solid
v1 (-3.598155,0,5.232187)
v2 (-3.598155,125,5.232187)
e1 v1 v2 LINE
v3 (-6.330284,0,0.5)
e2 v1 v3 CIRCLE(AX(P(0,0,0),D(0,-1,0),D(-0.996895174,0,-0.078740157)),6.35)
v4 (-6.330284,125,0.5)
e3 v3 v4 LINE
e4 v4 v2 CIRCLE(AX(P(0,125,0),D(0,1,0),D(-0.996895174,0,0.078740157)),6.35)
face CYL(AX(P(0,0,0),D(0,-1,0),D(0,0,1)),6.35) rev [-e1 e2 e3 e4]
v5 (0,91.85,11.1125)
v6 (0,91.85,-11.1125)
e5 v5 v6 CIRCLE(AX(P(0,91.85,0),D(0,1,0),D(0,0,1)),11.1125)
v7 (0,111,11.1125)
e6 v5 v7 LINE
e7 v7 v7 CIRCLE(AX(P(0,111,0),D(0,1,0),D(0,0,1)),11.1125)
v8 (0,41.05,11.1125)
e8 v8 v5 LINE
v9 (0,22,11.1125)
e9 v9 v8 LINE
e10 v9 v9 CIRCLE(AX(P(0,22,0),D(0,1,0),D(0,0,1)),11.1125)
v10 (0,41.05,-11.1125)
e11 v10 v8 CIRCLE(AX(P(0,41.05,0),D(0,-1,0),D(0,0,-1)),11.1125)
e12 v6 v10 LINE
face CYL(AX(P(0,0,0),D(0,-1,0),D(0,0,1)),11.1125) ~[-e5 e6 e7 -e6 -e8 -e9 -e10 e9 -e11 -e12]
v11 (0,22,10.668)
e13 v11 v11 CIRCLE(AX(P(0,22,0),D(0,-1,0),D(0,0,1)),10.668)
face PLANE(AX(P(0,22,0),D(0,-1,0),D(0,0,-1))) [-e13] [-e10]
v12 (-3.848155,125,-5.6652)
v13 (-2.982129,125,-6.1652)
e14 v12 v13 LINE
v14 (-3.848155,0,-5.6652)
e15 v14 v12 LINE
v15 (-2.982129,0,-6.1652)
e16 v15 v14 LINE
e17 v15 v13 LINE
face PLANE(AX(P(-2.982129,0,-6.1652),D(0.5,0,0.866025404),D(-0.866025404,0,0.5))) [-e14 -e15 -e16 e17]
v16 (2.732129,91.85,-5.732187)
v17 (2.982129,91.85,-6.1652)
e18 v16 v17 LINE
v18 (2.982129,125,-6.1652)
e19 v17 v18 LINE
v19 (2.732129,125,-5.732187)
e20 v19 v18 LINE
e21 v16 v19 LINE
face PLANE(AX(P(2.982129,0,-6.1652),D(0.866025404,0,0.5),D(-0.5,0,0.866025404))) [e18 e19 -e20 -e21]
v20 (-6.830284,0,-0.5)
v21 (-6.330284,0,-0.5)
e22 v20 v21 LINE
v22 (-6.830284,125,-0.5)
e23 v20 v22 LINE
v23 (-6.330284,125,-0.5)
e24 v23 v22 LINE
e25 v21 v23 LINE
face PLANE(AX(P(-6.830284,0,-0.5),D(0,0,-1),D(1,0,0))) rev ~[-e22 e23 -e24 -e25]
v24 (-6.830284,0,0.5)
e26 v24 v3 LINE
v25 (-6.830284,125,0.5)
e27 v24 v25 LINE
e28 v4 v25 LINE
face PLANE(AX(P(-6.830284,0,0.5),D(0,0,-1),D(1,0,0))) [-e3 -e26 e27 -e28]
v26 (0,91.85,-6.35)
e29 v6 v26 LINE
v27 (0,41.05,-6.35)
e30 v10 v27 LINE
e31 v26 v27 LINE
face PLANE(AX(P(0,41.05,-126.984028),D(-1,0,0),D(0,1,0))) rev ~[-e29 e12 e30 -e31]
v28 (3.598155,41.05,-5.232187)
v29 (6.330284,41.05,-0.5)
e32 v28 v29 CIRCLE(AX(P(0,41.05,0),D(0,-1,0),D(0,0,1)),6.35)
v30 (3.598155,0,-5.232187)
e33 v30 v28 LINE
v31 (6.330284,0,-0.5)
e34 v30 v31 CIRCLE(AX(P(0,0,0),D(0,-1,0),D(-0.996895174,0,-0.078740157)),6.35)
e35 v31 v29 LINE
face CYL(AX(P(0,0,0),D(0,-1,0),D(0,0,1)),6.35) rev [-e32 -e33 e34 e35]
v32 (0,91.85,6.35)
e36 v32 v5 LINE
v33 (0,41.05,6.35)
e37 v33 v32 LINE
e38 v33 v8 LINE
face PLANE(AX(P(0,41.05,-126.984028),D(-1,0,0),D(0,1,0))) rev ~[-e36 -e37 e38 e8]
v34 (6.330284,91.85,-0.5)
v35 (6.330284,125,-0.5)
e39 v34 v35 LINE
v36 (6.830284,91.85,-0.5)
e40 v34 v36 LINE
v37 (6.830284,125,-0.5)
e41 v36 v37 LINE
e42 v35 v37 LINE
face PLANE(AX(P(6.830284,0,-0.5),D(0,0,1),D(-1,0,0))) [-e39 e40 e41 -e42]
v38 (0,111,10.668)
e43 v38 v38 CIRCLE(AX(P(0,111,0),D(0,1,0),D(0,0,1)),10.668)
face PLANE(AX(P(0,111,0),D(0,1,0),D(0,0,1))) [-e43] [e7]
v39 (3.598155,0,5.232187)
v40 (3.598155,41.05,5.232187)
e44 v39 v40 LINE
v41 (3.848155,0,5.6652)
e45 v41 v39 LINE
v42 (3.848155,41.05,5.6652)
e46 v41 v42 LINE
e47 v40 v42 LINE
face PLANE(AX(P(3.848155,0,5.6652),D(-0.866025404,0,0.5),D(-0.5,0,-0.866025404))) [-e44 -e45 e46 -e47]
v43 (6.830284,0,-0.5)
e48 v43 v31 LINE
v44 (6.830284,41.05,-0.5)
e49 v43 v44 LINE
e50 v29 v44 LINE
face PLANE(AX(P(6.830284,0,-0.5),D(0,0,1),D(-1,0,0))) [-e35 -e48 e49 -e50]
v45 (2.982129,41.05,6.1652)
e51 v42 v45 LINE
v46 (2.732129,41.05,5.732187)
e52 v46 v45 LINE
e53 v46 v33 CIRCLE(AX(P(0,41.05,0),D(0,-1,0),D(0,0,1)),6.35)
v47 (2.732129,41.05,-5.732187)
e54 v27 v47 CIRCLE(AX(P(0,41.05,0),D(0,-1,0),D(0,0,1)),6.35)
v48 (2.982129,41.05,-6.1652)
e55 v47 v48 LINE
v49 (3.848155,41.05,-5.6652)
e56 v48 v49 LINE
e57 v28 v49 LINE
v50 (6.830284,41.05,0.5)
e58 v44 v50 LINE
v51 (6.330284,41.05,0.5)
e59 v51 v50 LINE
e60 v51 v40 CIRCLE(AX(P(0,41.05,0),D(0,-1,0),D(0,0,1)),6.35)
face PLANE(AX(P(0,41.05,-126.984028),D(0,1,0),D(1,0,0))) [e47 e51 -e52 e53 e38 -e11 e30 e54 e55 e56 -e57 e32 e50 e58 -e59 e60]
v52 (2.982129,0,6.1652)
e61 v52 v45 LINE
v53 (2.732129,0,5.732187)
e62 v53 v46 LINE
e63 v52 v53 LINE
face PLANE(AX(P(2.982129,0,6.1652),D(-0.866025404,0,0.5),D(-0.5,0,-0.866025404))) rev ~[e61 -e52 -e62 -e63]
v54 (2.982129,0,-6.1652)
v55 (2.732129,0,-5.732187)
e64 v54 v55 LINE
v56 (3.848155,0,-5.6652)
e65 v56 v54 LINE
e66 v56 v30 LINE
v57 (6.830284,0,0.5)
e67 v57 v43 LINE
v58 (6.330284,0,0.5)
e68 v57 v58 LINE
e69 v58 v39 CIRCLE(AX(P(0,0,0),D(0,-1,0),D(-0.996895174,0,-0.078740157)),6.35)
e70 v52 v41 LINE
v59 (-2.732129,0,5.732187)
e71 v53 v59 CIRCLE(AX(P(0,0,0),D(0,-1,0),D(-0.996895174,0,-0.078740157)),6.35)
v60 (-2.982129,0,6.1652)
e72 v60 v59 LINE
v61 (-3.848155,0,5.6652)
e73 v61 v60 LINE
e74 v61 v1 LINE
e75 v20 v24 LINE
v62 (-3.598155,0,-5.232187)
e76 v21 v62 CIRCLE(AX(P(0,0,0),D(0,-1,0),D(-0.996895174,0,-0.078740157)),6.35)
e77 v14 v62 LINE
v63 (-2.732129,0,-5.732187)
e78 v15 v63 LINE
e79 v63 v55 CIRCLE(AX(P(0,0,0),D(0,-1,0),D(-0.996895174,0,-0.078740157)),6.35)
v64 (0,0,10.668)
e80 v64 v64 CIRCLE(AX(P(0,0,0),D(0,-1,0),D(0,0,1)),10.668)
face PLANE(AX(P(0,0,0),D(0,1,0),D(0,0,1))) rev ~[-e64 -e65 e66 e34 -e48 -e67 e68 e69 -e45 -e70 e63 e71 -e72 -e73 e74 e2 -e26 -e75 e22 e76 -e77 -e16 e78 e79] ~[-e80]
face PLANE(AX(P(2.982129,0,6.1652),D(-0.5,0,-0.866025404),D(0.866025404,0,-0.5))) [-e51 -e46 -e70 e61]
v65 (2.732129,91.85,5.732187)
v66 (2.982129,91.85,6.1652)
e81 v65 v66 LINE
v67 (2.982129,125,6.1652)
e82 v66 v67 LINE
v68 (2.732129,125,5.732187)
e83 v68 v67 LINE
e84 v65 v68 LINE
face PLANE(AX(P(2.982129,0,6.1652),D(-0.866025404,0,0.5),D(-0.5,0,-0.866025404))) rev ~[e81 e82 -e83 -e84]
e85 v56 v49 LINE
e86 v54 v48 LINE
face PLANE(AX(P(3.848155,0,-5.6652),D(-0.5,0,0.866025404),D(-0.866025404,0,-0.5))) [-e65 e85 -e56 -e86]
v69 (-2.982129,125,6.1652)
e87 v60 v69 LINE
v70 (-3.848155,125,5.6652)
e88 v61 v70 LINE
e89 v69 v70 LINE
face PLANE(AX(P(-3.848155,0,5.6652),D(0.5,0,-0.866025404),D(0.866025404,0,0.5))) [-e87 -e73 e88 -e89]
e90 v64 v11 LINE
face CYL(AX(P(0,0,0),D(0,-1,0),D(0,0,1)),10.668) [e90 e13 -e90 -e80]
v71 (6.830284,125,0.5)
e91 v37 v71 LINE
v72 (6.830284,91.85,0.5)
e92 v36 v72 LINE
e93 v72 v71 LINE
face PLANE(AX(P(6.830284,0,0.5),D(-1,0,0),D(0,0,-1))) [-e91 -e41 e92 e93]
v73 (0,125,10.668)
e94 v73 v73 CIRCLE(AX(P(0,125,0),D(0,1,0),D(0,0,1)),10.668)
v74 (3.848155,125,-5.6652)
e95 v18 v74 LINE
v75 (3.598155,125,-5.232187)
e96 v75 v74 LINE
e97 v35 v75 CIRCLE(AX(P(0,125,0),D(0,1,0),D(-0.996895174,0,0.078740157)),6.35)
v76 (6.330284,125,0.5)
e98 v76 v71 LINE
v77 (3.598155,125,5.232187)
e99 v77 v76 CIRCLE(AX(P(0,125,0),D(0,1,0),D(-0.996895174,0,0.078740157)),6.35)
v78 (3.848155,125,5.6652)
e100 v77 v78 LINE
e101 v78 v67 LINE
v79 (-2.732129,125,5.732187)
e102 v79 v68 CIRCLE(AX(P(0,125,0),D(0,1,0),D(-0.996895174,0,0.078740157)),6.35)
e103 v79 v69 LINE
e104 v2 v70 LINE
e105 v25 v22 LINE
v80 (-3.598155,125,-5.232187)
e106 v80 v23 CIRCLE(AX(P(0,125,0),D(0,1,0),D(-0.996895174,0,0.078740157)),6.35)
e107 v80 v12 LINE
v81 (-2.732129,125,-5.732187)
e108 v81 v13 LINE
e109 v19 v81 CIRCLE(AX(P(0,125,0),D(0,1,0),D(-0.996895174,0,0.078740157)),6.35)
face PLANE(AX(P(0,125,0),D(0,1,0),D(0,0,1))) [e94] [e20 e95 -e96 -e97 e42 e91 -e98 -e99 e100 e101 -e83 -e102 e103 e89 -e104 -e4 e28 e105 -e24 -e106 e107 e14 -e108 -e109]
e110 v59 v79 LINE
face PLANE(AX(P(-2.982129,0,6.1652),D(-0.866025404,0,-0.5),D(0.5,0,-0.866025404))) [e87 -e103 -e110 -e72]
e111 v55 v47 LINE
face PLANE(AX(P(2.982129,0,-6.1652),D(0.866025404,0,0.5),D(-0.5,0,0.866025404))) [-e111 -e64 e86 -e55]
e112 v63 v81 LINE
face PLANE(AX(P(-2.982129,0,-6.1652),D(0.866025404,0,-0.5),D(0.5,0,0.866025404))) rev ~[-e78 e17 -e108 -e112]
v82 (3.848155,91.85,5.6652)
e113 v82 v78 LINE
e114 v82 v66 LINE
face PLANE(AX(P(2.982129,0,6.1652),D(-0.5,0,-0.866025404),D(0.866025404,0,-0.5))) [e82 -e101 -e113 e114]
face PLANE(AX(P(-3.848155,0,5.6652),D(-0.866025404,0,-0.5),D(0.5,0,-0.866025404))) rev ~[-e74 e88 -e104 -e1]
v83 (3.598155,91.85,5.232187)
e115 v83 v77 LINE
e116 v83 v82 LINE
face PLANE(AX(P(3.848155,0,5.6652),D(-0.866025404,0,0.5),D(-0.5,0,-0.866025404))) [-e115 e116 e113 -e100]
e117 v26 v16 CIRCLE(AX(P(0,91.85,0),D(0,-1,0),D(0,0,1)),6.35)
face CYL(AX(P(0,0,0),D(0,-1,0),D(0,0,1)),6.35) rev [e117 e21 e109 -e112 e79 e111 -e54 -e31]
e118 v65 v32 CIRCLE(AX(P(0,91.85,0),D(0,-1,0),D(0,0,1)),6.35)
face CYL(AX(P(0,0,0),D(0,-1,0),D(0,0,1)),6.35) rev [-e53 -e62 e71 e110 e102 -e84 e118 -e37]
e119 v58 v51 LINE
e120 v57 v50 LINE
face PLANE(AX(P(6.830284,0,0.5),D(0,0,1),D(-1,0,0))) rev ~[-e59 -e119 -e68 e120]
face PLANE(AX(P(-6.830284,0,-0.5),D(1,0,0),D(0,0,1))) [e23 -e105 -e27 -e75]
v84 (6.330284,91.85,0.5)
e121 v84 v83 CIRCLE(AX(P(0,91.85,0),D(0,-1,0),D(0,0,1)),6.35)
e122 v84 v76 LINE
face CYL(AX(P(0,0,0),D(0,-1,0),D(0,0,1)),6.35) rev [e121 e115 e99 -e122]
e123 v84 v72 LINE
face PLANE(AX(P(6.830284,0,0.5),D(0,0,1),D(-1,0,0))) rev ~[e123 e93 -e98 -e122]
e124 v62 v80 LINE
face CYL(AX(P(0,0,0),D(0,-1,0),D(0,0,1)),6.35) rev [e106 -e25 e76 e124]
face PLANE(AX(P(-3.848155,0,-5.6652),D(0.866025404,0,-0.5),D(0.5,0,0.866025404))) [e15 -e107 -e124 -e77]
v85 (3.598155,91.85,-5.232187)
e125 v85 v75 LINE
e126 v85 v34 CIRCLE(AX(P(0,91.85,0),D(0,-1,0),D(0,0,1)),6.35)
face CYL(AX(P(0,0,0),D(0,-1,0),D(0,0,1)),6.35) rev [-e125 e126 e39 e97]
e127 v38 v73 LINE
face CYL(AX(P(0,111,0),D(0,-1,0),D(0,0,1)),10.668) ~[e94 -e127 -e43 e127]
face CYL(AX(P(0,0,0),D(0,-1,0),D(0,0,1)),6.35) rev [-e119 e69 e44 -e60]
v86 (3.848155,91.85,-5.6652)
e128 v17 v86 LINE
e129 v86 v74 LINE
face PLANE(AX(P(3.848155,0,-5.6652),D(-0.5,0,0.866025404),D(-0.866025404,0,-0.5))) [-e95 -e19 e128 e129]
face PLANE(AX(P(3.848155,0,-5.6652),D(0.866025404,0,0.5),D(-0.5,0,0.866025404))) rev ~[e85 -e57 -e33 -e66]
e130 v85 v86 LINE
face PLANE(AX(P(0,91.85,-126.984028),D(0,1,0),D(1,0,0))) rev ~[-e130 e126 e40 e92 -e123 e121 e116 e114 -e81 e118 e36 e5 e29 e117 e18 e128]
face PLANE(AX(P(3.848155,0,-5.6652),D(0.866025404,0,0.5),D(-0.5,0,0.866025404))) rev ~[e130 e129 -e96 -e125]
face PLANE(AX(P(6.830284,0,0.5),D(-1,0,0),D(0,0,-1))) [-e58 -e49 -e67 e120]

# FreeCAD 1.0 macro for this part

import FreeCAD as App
import Part
import Sketcher

doc = App.newDocument("Part")
params = doc.addObject("Spreadsheet::Sheet", "Params")
for row, (alias, value) in enumerate([
    ("sketch1_diameter", "12.7 mm"),
    ("pad1_length", "125 mm"),
    ("pocket1_length", "14 mm"),
    ("pocket2_length", "22 mm"),
    ("sketch4_height", "50.8 mm"),
    ("sketch5_height", "1 mm"),
    ("sketch5_width", "0.5 mm"),
], start=1):
    params.set(f"A{row}", alias)
    params.set(f"B{row}", "=" + value)
    params.setAlias(f"B{row}", alias)

body = doc.addObject("PartDesign::Body", "Body")

# Sketch on XZ plane
sketch1 = doc.addObject("Sketcher::SketchObject", "Sketch")
body.addObject(sketch1)
sketch1.AttachmentSupport = (doc.XZ_Plane, [""])
sketch1.MapMode = "FlatFace"
sketch1.addGeometry([
    Part.Circle(App.Vector(0, 0, 0), App.Vector(0, 0, 1), 11.1125),
    Part.Circle(App.Vector(0, 0, 0), App.Vector(0, 0, 1), 6.35),
], False)
sketch1.addConstraint([
    Sketcher.Constraint("Coincident", 0, 3, -1, 1),
    Sketcher.Constraint("Coincident", 1, 3, -1, 1),
    Sketcher.Constraint("Diameter", 1, 12.7),
    Sketcher.Constraint("Diameter", 0, 22.225),
])
sketch1.setExpression("Constraints[2]", "Params.sketch1_diameter")
pad1 = doc.addObject("PartDesign::Pad", "Pad")
body.addObject(pad1)
pad1.Profile = sketch1
pad1.setExpression("Length", "Params.pad1_length")
pad1.Reversed = True

# Sketch on XZ plane
sketch2 = doc.addObject("Sketcher::SketchObject", "Sketch001")
body.addObject(sketch2)
sketch2.AttachmentSupport = (doc.XZ_Plane, [""])
sketch2.MapMode = "FlatFace"
sketch2.AttachmentOffset = App.Placement(App.Vector(0, 0, -111), App.Rotation())
sketch2.addGeometry([
    Part.Circle(App.Vector(0, 0, 0), App.Vector(0, 0, 1), 11.1125),
    Part.Circle(App.Vector(0, 0, 0), App.Vector(0, 0, 1), 10.668),
], False)
sketch2.addConstraint([
    Sketcher.Constraint("Coincident", 0, 3, -1, 1),
    Sketcher.Constraint("Coincident", 1, 3, -1, 1),
    Sketcher.Constraint("Diameter", 0, 22.225),
    Sketcher.Constraint("Diameter", 1, 21.336),
])
pocket1 = doc.addObject("PartDesign::Pocket", "Pocket")
body.addObject(pocket1)
pocket1.Profile = sketch2
pocket1.setExpression("Length", "Params.pocket1_length")

# Sketch on XZ plane
sketch3 = doc.addObject("Sketcher::SketchObject", "Sketch002")
body.addObject(sketch3)
sketch3.AttachmentSupport = (doc.XZ_Plane, [""])
sketch3.MapMode = "FlatFace"
sketch3.addGeometry([
    Part.Circle(App.Vector(0, 0, 0), App.Vector(0, 0, 1), 11.1125),
    Part.Circle(App.Vector(0, 0, 0), App.Vector(0, 0, 1), 10.668),
], False)
sketch3.addConstraint([
    Sketcher.Constraint("Coincident", 0, 3, -1, 1),
    Sketcher.Constraint("Coincident", 1, 3, -1, 1),
    Sketcher.Constraint("Diameter", 0, 22.225),
    Sketcher.Constraint("Diameter", 1, 21.336),
])
pocket2 = doc.addObject("PartDesign::Pocket", "Pocket001")
body.addObject(pocket2)
pocket2.Profile = sketch3
pocket2.setExpression("Length", "Params.pocket2_length")

# Sketch on XY plane
sketch4 = doc.addObject("Sketcher::SketchObject", "Sketch003")
body.addObject(sketch4)
sketch4.AttachmentSupport = (doc.XY_Plane, [""])
sketch4.MapMode = "FlatFace"
sketch4.addGeometry([
    Part.LineSegment(App.Vector(0, 91.85, 0), App.Vector(0, 41.05, 0)),
    Part.LineSegment(App.Vector(0, 41.05, 0), App.Vector(11.1125, 41.05, 0)),
    Part.LineSegment(App.Vector(11.1125, 41.05, 0), App.Vector(11.1125, 91.85, 0)),
    Part.LineSegment(App.Vector(11.1125, 91.85, 0), App.Vector(0, 91.85, 0)),
], False)
sketch4.addConstraint([
    Sketcher.Constraint("Coincident", 0, 2, 1, 1),
    Sketcher.Constraint("Coincident", 1, 2, 2, 1),
    Sketcher.Constraint("Coincident", 2, 2, 3, 1),
    Sketcher.Constraint("Coincident", 3, 2, 0, 1),
    Sketcher.Constraint("Vertical", 0),
    Sketcher.Constraint("Horizontal", 1),
    Sketcher.Constraint("Vertical", 2),
    Sketcher.Constraint("Horizontal", 3),
    Sketcher.Constraint("PointOnObject", 0, 2, -2),
    Sketcher.Constraint("DistanceY", 0, 2, 0, 1, 50.8),
    Sketcher.Constraint("DistanceY", -1, 1, 0, 2, 41.05),
    Sketcher.Constraint("DistanceX", 1, 1, 1, 2, 11.1125),
])
sketch4.setExpression("Constraints[9]", "Params.sketch4_height")
pocket3 = doc.addObject("PartDesign::Pocket", "Pocket002")
body.addObject(pocket3)
pocket3.Profile = sketch4
pocket3.Type = "ThroughAll"
pocket3.Midplane = True

# Sketch on XZ plane
sketch5 = doc.addObject("Sketcher::SketchObject", "Sketch004")
body.addObject(sketch5)
sketch5.AttachmentSupport = (doc.XZ_Plane, [""])
sketch5.MapMode = "FlatFace"
sketch5.addGeometry([
    Part.LineSegment(App.Vector(-6.830284, 0.5, 0), App.Vector(-6.830284, -0.5, 0)),
    Part.LineSegment(App.Vector(-6.830284, -0.5, 0), App.Vector(-6.330284, -0.5, 0)),
    Part.LineSegment(App.Vector(-6.330284, -0.5, 0), App.Vector(-6.330284, 0.5, 0)),
    Part.LineSegment(App.Vector(-6.330284, 0.5, 0), App.Vector(-6.830284, 0.5, 0)),
], False)
sketch5.addConstraint([
    Sketcher.Constraint("Coincident", 0, 2, 1, 1),
    Sketcher.Constraint("Coincident", 1, 2, 2, 1),
    Sketcher.Constraint("Coincident", 2, 2, 3, 1),
    Sketcher.Constraint("Coincident", 3, 2, 0, 1),
    Sketcher.Constraint("Vertical", 0),
    Sketcher.Constraint("Horizontal", 1),
    Sketcher.Constraint("Vertical", 2),
    Sketcher.Constraint("Horizontal", 3),
    Sketcher.Constraint("DistanceY", 0, 2, 0, 1, 1.0),
    Sketcher.Constraint("DistanceX", 1, 1, 1, 2, 0.5),
    Sketcher.Constraint("DistanceY", 0, 2, -1, 1, 0.5),
    Sketcher.Constraint("DistanceX", 0, 2, -1, 1, 6.830284),
])
sketch5.setExpression("Constraints[8]", "Params.sketch5_height")
sketch5.setExpression("Constraints[9]", "Params.sketch5_width")
pocket4 = doc.addObject("PartDesign::Pocket", "Pocket003")
body.addObject(pocket4)
pocket4.Profile = sketch5
pocket4.Type = "ThroughAll"
doc.recompute()

polarpattern = doc.addObject("PartDesign::PolarPattern", "PolarPattern")
body.addObject(polarpattern)
polarpattern.Originals = [pocket4]
polarpattern.Axis = (doc.Y_Axis, [""])
polarpattern.Angle = 360
polarpattern.Occurrences = 6
body.Tip = polarpattern

doc.recompute()
